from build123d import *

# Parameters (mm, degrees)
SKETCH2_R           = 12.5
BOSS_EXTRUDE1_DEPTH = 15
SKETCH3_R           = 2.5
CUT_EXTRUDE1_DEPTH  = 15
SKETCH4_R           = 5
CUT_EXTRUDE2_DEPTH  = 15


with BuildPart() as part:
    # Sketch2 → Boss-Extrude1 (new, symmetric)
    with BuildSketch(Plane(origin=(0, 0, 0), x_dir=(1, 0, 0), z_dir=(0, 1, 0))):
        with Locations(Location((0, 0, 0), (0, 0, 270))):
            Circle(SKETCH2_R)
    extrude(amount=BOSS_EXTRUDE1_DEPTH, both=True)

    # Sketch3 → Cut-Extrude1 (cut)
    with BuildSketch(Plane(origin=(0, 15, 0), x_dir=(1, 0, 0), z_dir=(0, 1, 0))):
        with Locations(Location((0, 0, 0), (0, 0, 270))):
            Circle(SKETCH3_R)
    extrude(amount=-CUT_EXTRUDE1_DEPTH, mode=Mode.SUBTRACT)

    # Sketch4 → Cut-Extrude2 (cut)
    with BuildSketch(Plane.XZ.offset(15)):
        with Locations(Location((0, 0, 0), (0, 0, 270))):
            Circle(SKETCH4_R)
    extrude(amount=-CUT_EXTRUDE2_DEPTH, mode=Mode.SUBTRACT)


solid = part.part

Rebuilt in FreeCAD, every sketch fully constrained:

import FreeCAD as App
import Part
import Sketcher

V = App.Vector
Q = App.Units.Quantity

doc = App.newDocument("Part")
body = doc.addObject("PartDesign::Body", "Body")

# Sketch on XZ plane
sketch1 = body.newObject("Sketcher::SketchObject", "Sketch")
sketch1.AttachmentSupport = (doc.getObject("XZ_Plane"), [""])
sketch1.MapMode = "FlatFace"
sketch1.addGeometry(Part.Circle(V(0, 0, 0), V(0, 0, 1), 12.5), False)
sketch1.addConstraint(Sketcher.Constraint("Coincident", 0, 3, -1, 1))
sketch1.addConstraint(Sketcher.Constraint("Diameter", 0, Q("25 mm")))
pad1 = body.newObject("PartDesign::Pad", "Pad")
pad1.Profile = sketch1
pad1.Length = 30
pad1.Midplane = True

# Sketch on XZ plane
sketch2 = body.newObject("Sketcher::SketchObject", "Sketch001")
sketch2.AttachmentSupport = (doc.getObject("XZ_Plane"), [""])
sketch2.MapMode = "FlatFace"
sketch2.AttachmentOffset = App.Placement(V(0, 0, -15), App.Rotation())
sketch2.addGeometry(Part.Circle(V(0, 0, 0), V(0, 0, 1), 2.5), False)
sketch2.addConstraint(Sketcher.Constraint("Coincident", 0, 3, -1, 1))
sketch2.addConstraint(Sketcher.Constraint("Diameter", 0, Q("5 mm")))
pocket1 = body.newObject("PartDesign::Pocket", "Pocket")
pocket1.Profile = sketch2
pocket1.Length = 15
pocket1.Reversed = True

# Sketch on XZ plane
sketch3 = body.newObject("Sketcher::SketchObject", "Sketch002")
sketch3.AttachmentSupport = (doc.getObject("XZ_Plane"), [""])
sketch3.MapMode = "FlatFace"
sketch3.AttachmentOffset = App.Placement(V(0, 0, 15), App.Rotation())
sketch3.addGeometry(Part.Circle(V(0, 0, 0), V(0, 0, 1), 5), False)
sketch3.addConstraint(Sketcher.Constraint("Coincident", 0, 3, -1, 1))
sketch3.addConstraint(Sketcher.Constraint("Diameter", 0, Q("10 mm")))
pocket2 = body.newObject("PartDesign::Pocket", "Pocket001")
pocket2.Profile = sketch3
pocket2.Length = 15

doc.recompute()
